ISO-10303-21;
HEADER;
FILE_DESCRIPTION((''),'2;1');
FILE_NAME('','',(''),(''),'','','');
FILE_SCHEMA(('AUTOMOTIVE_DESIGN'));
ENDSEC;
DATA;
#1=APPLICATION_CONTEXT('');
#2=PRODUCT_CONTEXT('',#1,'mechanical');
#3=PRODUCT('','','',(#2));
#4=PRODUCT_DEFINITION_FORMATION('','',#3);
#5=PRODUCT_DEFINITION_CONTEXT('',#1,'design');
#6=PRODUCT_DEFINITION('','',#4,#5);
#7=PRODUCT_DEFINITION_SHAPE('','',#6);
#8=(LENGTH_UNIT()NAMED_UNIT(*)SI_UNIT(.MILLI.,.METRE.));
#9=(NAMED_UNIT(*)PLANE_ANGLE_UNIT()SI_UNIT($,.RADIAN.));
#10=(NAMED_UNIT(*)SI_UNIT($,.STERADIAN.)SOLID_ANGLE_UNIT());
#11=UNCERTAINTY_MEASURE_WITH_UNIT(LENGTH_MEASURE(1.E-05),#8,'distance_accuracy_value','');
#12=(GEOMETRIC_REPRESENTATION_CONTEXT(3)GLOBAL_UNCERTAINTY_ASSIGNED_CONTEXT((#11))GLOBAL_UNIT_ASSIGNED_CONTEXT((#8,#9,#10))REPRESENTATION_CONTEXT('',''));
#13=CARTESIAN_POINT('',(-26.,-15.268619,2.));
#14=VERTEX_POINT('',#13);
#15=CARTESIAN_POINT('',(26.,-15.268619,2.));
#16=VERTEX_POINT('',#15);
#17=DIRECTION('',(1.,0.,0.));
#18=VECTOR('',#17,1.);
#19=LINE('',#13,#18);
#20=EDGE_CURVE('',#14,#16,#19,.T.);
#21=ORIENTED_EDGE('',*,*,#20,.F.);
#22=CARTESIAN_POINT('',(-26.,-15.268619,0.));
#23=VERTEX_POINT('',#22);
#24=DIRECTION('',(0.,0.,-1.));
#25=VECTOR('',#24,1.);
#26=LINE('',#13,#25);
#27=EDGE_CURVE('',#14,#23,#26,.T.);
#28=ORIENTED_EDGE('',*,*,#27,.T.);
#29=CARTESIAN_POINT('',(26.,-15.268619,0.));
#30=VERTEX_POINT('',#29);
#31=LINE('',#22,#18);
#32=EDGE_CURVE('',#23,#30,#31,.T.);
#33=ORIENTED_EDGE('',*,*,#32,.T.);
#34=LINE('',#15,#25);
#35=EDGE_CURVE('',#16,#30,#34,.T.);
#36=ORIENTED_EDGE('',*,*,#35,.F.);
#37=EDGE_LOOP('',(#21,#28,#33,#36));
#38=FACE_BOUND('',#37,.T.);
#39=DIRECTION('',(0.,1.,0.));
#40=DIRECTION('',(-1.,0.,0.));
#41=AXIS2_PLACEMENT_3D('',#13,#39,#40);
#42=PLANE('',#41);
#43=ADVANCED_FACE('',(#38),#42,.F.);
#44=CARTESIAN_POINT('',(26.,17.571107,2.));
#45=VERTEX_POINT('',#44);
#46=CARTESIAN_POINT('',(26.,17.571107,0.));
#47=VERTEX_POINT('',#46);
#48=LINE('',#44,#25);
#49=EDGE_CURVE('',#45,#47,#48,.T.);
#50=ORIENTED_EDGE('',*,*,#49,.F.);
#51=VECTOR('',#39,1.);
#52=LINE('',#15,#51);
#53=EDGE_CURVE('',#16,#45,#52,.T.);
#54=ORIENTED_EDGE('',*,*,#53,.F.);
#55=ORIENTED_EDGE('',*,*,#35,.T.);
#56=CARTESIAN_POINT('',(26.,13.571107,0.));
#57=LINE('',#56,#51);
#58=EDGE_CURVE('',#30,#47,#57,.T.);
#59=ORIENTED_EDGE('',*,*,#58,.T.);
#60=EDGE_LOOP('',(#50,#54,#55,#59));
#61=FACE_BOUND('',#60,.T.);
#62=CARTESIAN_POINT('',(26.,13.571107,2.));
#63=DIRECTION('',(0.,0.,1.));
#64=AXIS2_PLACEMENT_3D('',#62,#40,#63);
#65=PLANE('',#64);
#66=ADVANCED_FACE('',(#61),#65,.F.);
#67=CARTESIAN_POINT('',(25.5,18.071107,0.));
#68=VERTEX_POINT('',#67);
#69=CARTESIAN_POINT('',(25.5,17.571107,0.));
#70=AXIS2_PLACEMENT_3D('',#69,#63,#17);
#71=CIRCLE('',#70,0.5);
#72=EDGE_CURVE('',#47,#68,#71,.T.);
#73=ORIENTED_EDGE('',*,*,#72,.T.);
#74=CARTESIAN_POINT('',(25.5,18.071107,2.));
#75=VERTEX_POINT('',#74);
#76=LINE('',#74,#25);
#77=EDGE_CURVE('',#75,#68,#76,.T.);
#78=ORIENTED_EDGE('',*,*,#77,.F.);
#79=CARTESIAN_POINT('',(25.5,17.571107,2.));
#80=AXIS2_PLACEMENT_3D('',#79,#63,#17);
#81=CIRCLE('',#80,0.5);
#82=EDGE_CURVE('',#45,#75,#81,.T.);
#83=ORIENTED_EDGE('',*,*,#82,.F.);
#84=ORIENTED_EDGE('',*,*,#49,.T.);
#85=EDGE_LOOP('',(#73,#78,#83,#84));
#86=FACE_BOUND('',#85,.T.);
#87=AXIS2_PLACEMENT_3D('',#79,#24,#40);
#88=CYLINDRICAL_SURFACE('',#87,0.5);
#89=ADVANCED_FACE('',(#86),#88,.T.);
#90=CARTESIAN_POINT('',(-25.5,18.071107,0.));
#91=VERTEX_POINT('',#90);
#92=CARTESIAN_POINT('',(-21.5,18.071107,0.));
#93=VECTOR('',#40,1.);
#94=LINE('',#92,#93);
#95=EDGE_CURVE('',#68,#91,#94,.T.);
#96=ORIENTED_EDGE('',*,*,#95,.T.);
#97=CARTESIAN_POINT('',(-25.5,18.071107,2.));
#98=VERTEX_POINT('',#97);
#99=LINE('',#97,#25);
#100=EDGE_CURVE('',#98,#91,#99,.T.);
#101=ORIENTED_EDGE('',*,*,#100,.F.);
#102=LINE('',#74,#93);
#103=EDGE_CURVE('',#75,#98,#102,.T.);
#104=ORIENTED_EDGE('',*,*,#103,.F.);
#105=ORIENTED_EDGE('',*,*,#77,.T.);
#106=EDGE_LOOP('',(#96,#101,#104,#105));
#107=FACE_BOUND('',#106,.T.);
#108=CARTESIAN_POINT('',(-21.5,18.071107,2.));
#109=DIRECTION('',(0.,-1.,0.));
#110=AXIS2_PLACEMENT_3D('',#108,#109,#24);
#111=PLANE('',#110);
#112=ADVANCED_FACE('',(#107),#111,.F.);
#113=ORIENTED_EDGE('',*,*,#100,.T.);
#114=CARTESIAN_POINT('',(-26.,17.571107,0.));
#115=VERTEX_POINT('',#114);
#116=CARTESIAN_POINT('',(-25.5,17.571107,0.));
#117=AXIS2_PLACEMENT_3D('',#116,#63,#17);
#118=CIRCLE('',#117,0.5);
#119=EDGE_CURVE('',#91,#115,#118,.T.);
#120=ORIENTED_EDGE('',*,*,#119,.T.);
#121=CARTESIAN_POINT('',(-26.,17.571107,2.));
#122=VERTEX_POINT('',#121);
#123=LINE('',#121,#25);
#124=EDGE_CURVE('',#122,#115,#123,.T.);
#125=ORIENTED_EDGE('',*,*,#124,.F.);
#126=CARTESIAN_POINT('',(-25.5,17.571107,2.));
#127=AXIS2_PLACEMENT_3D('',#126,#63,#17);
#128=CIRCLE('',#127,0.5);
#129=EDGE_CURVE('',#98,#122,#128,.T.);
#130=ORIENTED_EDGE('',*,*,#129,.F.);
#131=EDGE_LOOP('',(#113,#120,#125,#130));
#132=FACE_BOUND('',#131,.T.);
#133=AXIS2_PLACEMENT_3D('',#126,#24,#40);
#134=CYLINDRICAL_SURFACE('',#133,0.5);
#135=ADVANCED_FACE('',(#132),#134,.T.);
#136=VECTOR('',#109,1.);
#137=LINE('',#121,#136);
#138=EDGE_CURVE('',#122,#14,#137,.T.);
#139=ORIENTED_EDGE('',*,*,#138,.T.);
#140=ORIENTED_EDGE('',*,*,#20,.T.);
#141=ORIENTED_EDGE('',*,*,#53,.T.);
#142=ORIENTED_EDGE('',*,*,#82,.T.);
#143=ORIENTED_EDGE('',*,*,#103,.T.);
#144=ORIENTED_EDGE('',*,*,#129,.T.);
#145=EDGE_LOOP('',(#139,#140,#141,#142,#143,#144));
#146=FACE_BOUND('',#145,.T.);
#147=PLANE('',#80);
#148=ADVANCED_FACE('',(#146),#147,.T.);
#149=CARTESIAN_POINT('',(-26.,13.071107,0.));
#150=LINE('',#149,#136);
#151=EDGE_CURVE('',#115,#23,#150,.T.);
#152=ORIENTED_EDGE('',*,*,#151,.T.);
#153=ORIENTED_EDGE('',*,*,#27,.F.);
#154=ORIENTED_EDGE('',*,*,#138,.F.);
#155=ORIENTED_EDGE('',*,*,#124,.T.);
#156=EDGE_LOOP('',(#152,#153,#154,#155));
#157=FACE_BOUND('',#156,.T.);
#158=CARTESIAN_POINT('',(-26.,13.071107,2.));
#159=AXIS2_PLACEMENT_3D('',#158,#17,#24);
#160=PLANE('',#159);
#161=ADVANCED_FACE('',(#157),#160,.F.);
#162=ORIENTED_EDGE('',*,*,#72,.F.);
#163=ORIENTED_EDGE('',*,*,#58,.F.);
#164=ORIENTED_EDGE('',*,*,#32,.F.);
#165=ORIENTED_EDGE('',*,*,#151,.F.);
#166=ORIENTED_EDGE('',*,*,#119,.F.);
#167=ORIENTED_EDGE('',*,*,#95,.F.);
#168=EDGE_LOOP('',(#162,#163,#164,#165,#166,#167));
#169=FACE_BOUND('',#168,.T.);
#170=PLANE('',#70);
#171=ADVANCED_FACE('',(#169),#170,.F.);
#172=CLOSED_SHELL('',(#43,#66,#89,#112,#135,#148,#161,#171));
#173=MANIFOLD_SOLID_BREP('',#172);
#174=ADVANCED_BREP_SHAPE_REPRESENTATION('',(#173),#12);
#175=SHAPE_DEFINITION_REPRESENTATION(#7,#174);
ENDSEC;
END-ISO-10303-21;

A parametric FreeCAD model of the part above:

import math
import FreeCAD as App
import Part
import Sketcher

V = App.Vector

doc = App.newDocument("Part")
body = doc.addObject("PartDesign::Body", "Body")

# Sketch on XY plane
sketch1 = body.newObject("Sketcher::SketchObject", "Sketch")
sketch1.AttachmentSupport = (doc.getObject("XY_Plane"), [""])
sketch1.MapMode = "FlatFace"
sketch1.addGeometry([
    Part.ArcOfCircle(Part.Circle(V(25.5, 17.6, 0), V(0, 0, 1), 0.5), math.radians(0), math.radians(90)),  # 0
    Part.LineSegment(V(25.5, 18.1, 0), V(-25.5, 18.1, 0)),  # 1
    Part.ArcOfCircle(Part.Circle(V(-25.5, 17.6, 0), V(0, 0, 1), 0.5), math.radians(90), math.radians(180)),  # 2
    Part.LineSegment(V(-26, 17.6, 0), V(-26, -15.3, 0)),  # 3
    Part.LineSegment(V(-26, -15.3, 0), V(26, -15.3, 0)),  # 4
    Part.LineSegment(V(26, -15.3, 0), V(26, 17.6, 0)),  # 5
], False)
sketch1.addConstraint([
    Sketcher.Constraint("Tangent", 0, 2, 1, 1),
    Sketcher.Constraint("Tangent", 1, 2, 2, 1),
    Sketcher.Constraint("Tangent", 2, 2, 3, 1),
    Sketcher.Constraint("Coincident", 3, 2, 4, 1),
    Sketcher.Constraint("Coincident", 4, 2, 5, 1),
    Sketcher.Constraint("Tangent", 5, 2, 0, 1),
    Sketcher.Constraint("Horizontal", 1),
    Sketcher.Constraint("Vertical", 3),
    Sketcher.Constraint("Horizontal", 4),
    Sketcher.Constraint("Vertical", 5),
    Sketcher.Constraint("Equal", 0, 2),
    Sketcher.Constraint("Radius", 0, 0.5),
    Sketcher.Constraint("DistanceX", 1, 2, 1, 1, 51.0),
    Sketcher.Constraint("DistanceX", 2, 2, -1, 1, 26.0),
    Sketcher.Constraint("DistanceY", 3, 2, 3, 1, 32.839726),
    Sketcher.Constraint("DistanceY", 3, 2, -1, 1, 15.268619),
])
pad1 = body.newObject("PartDesign::Pad", "Pad")
pad1.Profile = sketch1
pad1.Length = 2

doc.recompute()
